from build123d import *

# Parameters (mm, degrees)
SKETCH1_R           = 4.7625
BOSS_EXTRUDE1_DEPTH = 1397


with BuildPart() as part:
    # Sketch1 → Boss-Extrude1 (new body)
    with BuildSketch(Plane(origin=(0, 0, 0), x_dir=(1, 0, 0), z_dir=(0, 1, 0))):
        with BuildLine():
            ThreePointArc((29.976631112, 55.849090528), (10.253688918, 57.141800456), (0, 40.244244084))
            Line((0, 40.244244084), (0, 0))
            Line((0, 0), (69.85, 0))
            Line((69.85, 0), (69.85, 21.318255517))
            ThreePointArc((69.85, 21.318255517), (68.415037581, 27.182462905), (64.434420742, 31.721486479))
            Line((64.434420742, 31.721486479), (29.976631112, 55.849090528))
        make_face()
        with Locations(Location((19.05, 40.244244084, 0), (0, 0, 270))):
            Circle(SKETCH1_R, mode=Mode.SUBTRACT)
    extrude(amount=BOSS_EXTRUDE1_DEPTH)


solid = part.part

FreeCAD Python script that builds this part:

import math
import FreeCAD as App
import Part
import Sketcher
from FreeCAD import Vector
Q = App.Units.Quantity

doc = App.newDocument("Part")
body = doc.addObject("PartDesign::Body", "Body")

# Sketch on XZ plane
sketch1 = doc.addObject("Sketcher::SketchObject", "Sketch")
body.addObject(sketch1)
sketch1.AttachmentSupport = (doc.XZ_Plane, [""])
sketch1.MapMode = "FlatFace"
sketch1.addGeometry([
    Part.ArcOfCircle(Part.Circle(Vector(19.1, -40.2, 0), Vector(0, 0, 1), 19.1), math.radians(180), math.radians(305)),  # 0
    Part.LineSegment(Vector(0, -40.2, 0), Vector(0, 0, 0)),  # 1
    Part.LineSegment(Vector(0, 0, 0), Vector(69.8, 0, 0)),  # 2
    Part.LineSegment(Vector(69.8, 0, 0), Vector(69.8, -21.3, 0)),  # 3
    Part.ArcOfCircle(Part.Circle(Vector(57.1, -21.3, 0), Vector(0, 0, 1), 12.7), math.radians(-55), math.radians(0)),  # 4
    Part.LineSegment(Vector(64.4, -31.7, 0), Vector(30, -55.8, 0)),  # 5
    Part.Circle(Vector(19.1, -40.2, 0), Vector(0, 0, 1), 4.8),  # 6
], False)
sketch1.addConstraint([
    Sketcher.Constraint("Tangent", 0, 1, 1, 1),
    Sketcher.Constraint("Coincident", 1, 2, 2, 1),
    Sketcher.Constraint("Coincident", 2, 2, 3, 1),
    Sketcher.Constraint("Tangent", 3, 2, 4, 2),
    Sketcher.Constraint("Tangent", 4, 1, 5, 1),
    Sketcher.Constraint("Tangent", 5, 2, 0, 2),
    Sketcher.Constraint("Vertical", 1),
    Sketcher.Constraint("Horizontal", 2),
    Sketcher.Constraint("Vertical", 3),
    Sketcher.Constraint("Coincident", 1, 2, -1, 1),
    Sketcher.Constraint("Coincident", 6, 3, 0, 3),
    Sketcher.Constraint("Radius", 4, Q("0.5 in")),
    Sketcher.Constraint("Radius", 0, Q("0.75 in")),
    Sketcher.Constraint("Diameter", 6, Q("0.375 in")),
    Sketcher.Constraint("Angle", 5, Q("-145 deg")),
    Sketcher.Constraint("DistanceX", 0, 3, 2, 2, Q("2 in")),
    Sketcher.Constraint("DistanceY", 1, 1, 1, 2, Q("40.244244 mm")),
])
pad1 = doc.addObject("PartDesign::Pad", "Pad")
body.addObject(pad1)
pad1.Profile = sketch1
pad1.Length = Q("55 in")
pad1.Reversed = True

doc.recompute()
